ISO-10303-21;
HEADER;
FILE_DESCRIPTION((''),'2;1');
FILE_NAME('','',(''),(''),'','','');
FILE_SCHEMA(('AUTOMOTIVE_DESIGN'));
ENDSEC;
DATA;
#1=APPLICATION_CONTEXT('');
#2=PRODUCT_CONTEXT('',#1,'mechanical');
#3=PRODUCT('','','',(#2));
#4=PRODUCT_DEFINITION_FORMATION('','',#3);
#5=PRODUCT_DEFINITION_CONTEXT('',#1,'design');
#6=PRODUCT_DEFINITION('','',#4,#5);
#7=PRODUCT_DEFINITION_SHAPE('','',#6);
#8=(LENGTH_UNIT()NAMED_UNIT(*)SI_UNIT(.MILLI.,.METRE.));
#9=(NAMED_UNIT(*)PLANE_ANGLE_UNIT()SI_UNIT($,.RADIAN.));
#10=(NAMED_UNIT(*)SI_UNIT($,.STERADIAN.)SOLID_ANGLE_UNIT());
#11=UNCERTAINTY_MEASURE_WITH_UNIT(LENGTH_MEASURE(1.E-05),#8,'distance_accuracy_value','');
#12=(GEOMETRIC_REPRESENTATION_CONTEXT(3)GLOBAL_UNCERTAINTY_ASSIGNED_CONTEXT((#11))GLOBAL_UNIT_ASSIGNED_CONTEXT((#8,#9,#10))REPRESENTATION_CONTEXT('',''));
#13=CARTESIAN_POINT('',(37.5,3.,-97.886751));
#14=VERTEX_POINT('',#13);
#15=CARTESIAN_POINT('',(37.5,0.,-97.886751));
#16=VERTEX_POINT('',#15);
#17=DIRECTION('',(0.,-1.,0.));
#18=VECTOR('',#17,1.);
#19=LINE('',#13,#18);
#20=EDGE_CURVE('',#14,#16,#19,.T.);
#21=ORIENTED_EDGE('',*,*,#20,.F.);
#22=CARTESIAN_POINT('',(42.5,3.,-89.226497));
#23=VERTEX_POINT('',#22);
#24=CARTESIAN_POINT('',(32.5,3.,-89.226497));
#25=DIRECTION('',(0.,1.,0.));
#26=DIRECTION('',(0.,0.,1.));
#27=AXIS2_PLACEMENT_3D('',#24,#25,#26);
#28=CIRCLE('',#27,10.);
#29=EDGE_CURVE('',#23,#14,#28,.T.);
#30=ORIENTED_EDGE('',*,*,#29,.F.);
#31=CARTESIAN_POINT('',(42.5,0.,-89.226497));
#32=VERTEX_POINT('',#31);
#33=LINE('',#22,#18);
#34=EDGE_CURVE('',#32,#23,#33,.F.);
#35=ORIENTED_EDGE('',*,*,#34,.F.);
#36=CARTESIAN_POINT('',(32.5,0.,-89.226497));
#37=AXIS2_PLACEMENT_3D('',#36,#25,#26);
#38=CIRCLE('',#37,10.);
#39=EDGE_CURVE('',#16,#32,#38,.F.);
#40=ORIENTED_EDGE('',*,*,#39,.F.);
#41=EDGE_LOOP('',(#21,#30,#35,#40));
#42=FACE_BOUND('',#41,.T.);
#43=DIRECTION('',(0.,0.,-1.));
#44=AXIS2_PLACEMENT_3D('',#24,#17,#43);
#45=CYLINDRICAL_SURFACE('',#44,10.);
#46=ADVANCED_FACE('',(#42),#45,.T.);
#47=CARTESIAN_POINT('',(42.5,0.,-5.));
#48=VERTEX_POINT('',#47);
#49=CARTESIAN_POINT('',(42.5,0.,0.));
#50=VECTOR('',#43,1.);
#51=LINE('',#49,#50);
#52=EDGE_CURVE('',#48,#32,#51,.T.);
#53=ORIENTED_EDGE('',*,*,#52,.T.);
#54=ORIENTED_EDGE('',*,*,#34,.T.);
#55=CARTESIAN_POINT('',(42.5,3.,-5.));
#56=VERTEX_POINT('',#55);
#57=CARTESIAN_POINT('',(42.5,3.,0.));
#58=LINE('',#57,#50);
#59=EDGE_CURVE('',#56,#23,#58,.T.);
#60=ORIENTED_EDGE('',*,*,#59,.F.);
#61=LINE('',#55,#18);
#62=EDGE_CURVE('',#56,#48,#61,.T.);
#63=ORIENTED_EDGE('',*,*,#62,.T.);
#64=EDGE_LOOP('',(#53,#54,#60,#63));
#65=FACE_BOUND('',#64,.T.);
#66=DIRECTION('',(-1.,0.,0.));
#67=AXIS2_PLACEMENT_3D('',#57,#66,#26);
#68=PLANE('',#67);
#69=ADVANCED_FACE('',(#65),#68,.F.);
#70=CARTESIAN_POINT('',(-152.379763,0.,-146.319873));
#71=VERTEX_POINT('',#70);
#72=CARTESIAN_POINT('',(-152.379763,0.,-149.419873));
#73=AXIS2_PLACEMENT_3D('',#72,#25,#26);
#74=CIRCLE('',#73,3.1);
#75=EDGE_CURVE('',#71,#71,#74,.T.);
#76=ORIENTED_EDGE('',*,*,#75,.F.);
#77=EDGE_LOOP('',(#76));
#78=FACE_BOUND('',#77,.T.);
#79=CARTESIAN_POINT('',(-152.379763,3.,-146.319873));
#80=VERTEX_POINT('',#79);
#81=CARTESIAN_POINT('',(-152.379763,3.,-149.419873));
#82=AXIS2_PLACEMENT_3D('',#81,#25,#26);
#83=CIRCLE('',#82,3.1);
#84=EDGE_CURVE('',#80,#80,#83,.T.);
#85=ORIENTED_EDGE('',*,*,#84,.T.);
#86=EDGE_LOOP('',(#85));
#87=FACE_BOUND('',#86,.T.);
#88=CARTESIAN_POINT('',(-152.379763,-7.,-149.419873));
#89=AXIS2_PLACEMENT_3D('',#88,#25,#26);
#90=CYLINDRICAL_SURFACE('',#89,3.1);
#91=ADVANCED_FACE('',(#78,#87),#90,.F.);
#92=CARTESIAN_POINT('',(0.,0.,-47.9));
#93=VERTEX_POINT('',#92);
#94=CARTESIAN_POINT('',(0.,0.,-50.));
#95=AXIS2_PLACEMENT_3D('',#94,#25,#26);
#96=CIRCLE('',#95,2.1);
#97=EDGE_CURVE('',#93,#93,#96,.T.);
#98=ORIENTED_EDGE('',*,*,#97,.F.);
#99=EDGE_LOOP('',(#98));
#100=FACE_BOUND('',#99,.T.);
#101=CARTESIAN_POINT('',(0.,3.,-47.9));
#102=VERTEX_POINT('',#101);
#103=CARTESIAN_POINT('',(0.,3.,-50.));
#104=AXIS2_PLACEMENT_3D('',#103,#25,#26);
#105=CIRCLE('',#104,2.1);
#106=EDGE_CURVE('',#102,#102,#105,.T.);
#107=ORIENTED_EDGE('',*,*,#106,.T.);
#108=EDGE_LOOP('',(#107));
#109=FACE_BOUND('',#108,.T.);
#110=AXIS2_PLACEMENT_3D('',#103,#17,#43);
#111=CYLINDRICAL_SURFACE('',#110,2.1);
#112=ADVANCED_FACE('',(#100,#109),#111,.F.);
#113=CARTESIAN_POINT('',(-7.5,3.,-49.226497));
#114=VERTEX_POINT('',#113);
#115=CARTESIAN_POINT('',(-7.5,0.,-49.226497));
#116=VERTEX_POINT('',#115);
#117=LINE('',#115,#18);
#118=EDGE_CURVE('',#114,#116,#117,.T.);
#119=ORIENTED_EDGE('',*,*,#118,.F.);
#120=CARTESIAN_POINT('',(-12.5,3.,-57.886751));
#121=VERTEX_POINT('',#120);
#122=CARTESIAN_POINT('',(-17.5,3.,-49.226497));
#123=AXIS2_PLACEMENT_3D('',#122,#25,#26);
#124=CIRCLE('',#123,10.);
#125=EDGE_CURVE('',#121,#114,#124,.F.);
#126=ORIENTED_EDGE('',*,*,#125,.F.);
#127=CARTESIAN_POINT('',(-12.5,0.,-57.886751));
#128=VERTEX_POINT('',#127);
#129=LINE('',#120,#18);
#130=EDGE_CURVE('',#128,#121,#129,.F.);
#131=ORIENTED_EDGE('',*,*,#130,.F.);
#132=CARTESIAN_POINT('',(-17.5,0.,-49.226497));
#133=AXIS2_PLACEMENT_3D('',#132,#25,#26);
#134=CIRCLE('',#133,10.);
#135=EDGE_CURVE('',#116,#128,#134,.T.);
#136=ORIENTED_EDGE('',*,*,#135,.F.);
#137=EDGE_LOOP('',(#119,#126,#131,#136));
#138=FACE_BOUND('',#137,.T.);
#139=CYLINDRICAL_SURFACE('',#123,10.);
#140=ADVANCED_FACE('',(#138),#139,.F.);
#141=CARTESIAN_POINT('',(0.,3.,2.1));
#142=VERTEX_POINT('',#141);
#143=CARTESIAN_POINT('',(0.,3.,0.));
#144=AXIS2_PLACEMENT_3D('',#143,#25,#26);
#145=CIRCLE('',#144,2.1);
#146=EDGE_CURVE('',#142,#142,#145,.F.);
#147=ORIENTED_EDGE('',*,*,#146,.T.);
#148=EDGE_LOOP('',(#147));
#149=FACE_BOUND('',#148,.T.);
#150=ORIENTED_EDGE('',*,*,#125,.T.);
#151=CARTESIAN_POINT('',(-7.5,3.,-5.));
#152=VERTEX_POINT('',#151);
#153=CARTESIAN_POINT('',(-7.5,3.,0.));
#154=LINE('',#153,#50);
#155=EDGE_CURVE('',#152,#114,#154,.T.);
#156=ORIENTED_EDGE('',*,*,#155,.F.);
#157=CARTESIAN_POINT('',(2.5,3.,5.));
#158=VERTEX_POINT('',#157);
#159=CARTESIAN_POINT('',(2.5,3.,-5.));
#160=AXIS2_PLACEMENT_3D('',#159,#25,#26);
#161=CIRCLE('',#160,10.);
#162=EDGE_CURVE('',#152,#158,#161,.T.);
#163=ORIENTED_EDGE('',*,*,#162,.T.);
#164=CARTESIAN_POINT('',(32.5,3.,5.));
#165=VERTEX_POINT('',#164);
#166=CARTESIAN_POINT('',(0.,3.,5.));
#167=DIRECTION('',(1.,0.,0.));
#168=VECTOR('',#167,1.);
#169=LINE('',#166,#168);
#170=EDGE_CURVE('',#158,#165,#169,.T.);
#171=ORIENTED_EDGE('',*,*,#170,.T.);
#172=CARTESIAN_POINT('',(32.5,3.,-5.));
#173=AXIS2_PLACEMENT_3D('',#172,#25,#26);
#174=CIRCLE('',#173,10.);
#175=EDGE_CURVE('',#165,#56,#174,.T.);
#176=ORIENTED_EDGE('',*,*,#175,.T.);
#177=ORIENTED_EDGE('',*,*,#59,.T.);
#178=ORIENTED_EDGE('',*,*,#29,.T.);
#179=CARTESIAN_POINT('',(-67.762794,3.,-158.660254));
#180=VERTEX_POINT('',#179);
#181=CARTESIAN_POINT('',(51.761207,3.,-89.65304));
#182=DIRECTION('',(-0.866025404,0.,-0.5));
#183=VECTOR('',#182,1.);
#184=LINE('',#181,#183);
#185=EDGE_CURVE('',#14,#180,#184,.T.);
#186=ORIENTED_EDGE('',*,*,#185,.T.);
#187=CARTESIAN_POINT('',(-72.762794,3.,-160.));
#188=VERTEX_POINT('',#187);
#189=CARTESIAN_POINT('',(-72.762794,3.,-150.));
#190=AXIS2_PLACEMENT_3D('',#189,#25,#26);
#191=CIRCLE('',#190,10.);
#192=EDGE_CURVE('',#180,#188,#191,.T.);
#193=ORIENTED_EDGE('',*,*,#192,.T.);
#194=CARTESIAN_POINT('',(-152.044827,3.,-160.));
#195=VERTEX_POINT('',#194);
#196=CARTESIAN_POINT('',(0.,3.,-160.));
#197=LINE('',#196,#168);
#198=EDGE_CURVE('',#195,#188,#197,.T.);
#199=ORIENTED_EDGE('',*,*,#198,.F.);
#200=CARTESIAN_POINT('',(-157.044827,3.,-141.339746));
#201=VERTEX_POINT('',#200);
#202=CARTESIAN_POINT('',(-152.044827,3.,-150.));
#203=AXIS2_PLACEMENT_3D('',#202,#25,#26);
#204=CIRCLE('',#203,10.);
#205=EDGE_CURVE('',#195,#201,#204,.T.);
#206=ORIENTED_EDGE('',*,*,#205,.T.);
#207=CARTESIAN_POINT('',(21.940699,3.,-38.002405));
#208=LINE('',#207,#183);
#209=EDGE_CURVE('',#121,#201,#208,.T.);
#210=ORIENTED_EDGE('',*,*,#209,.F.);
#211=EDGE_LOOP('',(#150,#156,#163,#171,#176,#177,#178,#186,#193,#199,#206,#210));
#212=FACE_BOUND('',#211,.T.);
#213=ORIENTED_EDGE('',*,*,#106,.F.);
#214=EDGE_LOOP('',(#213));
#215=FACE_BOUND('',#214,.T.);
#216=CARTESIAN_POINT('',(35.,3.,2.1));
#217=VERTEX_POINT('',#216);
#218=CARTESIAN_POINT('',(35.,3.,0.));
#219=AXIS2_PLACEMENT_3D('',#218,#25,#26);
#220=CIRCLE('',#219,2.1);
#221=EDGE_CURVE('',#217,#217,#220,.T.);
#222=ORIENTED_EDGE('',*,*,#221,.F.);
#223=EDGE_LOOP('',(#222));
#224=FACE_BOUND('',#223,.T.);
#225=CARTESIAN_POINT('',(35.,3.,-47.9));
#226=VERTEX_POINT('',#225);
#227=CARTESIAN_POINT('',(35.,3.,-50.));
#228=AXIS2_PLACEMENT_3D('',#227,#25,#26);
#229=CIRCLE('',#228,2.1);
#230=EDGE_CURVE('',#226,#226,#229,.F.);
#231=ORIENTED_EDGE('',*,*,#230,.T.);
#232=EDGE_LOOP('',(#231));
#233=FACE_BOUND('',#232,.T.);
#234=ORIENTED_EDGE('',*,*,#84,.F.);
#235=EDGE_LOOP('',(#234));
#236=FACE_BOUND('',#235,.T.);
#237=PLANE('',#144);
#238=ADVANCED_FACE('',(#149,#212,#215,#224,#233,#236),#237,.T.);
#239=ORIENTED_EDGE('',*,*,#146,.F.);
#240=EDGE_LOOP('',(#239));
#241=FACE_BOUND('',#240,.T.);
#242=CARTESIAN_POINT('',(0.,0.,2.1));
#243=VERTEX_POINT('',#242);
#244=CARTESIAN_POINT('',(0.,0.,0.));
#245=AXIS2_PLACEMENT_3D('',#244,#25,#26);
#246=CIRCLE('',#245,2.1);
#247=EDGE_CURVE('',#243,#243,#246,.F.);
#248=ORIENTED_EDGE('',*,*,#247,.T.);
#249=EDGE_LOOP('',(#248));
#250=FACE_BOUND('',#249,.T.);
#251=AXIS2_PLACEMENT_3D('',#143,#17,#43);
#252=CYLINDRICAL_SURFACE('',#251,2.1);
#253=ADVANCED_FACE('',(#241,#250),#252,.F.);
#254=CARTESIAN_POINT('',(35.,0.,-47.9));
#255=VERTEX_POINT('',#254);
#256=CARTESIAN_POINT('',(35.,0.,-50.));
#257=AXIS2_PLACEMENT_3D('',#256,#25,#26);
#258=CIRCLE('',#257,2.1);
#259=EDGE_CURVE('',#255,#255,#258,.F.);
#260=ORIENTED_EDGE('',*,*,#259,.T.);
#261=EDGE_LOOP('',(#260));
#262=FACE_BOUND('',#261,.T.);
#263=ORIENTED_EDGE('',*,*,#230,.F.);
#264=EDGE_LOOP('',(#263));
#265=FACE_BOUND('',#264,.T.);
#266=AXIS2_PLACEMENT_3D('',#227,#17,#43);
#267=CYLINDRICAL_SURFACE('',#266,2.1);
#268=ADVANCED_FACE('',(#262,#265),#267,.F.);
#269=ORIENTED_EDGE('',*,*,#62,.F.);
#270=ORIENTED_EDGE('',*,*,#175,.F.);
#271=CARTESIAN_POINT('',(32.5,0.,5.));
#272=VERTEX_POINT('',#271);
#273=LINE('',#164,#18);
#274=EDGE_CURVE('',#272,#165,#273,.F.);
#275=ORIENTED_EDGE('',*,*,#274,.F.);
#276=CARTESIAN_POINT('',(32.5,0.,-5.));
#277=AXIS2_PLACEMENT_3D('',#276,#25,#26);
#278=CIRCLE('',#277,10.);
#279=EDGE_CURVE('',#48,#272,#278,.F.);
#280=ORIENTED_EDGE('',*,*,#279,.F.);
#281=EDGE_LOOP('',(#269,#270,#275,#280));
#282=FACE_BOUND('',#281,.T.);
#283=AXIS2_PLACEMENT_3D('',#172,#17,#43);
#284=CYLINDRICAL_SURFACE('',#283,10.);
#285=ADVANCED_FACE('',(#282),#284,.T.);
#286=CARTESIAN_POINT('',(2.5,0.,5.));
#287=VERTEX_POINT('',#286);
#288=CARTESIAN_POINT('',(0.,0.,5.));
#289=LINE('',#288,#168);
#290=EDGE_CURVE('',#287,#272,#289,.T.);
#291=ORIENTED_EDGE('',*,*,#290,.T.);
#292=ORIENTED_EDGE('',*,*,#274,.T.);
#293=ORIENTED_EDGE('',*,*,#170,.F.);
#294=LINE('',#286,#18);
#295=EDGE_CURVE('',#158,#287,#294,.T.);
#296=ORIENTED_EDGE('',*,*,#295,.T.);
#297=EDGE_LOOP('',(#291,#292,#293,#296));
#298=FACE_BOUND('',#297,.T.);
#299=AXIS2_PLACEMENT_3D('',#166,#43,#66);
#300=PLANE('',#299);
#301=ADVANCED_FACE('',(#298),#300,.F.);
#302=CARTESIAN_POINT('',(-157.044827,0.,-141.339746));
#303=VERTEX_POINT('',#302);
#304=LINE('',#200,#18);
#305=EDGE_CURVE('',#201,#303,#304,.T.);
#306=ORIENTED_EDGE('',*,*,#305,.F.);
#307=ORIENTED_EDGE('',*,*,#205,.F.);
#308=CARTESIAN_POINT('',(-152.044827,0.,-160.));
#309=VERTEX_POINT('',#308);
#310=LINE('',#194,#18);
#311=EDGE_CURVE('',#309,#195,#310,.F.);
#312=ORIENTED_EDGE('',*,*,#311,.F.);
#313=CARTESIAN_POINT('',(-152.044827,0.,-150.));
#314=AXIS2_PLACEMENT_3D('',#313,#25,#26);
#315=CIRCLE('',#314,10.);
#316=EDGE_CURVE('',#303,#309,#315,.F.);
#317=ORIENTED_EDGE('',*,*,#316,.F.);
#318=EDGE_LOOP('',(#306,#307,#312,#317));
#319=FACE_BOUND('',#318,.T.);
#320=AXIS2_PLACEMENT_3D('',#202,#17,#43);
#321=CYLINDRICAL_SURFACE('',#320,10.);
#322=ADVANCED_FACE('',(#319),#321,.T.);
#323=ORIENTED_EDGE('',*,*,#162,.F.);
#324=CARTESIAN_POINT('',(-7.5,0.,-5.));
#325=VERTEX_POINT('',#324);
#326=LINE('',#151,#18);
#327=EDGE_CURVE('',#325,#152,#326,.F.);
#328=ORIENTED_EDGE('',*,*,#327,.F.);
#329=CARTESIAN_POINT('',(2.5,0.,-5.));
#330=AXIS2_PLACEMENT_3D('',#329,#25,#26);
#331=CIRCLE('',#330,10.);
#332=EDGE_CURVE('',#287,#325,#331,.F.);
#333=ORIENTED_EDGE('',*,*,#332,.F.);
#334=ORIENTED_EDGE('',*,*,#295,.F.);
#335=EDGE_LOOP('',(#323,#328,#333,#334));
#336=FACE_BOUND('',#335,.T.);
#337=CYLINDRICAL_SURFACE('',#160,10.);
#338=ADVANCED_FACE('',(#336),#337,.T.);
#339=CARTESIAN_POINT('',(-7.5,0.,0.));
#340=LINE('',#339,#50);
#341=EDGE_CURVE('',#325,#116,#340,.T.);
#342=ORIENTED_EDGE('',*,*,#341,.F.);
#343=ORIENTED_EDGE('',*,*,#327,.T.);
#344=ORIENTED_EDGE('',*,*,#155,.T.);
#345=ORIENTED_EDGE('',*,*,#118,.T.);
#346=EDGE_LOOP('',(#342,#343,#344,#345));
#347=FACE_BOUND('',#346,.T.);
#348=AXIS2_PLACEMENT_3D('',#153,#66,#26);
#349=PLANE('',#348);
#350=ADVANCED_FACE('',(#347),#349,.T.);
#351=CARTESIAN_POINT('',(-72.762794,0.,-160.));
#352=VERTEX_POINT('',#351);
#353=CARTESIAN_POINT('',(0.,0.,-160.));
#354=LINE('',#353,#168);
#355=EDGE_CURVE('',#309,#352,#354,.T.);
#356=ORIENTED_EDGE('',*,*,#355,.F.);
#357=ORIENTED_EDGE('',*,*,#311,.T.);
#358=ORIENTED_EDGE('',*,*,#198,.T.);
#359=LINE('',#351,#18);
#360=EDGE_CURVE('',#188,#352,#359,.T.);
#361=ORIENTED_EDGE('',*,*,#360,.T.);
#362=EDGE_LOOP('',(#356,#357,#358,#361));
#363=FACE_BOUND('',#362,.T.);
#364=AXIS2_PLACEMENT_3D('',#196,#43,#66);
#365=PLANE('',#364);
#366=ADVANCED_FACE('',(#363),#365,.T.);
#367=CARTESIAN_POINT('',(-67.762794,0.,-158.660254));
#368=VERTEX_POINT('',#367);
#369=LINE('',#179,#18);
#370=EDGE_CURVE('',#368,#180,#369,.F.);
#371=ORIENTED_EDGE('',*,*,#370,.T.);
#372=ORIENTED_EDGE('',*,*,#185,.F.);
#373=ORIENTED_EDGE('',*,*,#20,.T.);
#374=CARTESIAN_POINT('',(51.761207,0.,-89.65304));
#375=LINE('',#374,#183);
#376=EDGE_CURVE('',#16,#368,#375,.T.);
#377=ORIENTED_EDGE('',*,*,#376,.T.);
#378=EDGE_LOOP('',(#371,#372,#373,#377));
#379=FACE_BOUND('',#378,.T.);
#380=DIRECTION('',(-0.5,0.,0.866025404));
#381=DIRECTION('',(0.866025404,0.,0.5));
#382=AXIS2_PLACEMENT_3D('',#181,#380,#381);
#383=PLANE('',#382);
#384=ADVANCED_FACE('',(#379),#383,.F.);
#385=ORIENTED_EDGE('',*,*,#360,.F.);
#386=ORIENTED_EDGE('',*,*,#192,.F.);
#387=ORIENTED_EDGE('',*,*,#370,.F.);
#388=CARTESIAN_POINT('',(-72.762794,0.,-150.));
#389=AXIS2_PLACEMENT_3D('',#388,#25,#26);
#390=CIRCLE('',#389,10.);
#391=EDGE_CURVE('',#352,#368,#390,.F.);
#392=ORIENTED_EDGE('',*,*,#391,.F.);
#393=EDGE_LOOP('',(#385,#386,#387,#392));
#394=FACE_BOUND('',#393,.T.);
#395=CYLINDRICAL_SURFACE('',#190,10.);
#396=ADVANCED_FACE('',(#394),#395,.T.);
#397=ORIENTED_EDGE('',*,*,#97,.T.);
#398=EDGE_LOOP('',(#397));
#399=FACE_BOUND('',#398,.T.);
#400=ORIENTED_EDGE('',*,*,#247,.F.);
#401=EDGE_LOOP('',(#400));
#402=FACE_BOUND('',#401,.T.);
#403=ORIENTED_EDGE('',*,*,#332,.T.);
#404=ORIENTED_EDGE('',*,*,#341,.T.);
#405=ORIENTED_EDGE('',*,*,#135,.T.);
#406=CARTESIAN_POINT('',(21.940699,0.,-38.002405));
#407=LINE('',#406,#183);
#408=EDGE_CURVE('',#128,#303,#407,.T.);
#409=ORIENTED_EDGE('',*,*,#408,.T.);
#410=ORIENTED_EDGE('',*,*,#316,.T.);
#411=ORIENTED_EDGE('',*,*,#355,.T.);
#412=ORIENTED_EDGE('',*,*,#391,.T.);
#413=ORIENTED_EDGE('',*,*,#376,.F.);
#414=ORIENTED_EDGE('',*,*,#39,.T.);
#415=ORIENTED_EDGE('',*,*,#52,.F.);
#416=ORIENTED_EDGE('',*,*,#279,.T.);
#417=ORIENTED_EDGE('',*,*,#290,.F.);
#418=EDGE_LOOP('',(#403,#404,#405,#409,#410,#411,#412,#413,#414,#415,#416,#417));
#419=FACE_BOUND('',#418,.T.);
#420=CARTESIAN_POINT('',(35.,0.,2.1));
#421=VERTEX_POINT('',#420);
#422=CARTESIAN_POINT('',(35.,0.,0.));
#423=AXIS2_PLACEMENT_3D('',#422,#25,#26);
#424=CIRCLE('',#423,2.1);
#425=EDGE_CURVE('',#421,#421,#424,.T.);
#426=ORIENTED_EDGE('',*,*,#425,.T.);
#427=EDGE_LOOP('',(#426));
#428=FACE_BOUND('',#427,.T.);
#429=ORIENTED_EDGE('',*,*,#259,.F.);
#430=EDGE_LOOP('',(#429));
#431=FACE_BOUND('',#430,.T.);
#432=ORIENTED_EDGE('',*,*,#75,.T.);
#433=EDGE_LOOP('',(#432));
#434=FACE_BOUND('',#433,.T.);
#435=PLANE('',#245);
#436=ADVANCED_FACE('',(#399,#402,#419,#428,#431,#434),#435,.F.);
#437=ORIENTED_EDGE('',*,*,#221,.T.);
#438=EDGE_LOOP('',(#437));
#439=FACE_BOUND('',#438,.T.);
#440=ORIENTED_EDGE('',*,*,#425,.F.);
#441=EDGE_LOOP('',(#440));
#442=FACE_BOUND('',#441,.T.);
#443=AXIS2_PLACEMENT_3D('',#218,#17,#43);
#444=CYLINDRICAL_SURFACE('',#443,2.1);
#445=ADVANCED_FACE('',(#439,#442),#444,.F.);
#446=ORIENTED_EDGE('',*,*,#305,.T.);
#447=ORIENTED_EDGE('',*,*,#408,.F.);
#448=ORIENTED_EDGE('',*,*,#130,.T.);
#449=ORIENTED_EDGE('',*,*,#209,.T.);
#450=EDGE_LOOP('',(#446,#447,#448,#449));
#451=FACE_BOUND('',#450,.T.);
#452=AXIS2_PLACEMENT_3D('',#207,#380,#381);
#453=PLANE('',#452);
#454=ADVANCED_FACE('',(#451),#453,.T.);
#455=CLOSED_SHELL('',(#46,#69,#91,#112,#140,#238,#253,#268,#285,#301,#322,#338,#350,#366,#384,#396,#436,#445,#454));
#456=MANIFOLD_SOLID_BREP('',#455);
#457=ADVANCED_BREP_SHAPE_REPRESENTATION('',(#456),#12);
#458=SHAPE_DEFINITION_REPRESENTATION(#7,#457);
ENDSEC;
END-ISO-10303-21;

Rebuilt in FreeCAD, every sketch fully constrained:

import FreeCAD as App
import Part
import Sketcher
from FreeCAD import Vector
Q = App.Units.Quantity


def edges_at(feature, points):
    """Names of the edges that pass closest to the given points."""
    edges = feature.Shape.Edges
    near = lambda p: min(range(len(edges)), key=lambda i: edges[i].distToShape(Part.Vertex(*p))[0])
    return sorted({f"Edge{near(p) + 1}" for p in points})

doc = App.newDocument("Part")
body = doc.addObject("PartDesign::Body", "Body")

sketch1 = body.newObject("Sketcher::SketchObject", "Sketch")
sketch1.AttachmentSupport = (doc.getObject("XZ_Plane"), [""])
sketch1.MapMode = "FlatFace"
sketch1.addGeometry([
    Part.LineSegment(Vector(-7.5, -55, 0), Vector(-7.5, 5, 0)),
    Part.LineSegment(Vector(-7.5, 5, 0), Vector(42.5, 5, 0)),
    Part.LineSegment(Vector(42.5, 5, 0), Vector(42.5, -95, 0)),
    Part.LineSegment(Vector(42.5, -95, 0), Vector(12.189111, -112.5, 0)),
    Part.LineSegment(Vector(12.189111, -112.5, 0), Vector(-18.121778, -130, 0)),
    Part.LineSegment(Vector(-18.121778, -130, 0), Vector(-70.083302, -160, 0)),
    Part.LineSegment(Vector(-70.083302, -160, 0), Vector(-189.365335, -160, 0)),
    Part.LineSegment(Vector(-189.365335, -160, 0), Vector(-7.5, -55, 0)),
    Part.Circle(Vector(0, 0, 0), Vector(0, 0, 1), 2.1),
    Part.Circle(Vector(35, 0, 0), Vector(0, 0, 1), 2.1),
    Part.Circle(Vector(0, -50, 0), Vector(0, 0, 1), 2.1),
    Part.Circle(Vector(35, -50, 0), Vector(0, 0, 1), 2.1),
], False)
sketch1.addConstraint([
    Sketcher.Constraint("Coincident", 0, 2, 1, 1),
    Sketcher.Constraint("Coincident", 1, 2, 2, 1),
    Sketcher.Constraint("Coincident", 2, 2, 3, 1),
    Sketcher.Constraint("Coincident", 3, 2, 4, 1),
    Sketcher.Constraint("Coincident", 4, 2, 5, 1),
    Sketcher.Constraint("Coincident", 5, 2, 6, 1),
    Sketcher.Constraint("Coincident", 6, 2, 7, 1),
    Sketcher.Constraint("Coincident", 7, 2, 0, 1),
    Sketcher.Constraint("Vertical", 0),
    Sketcher.Constraint("Horizontal", 1),
    Sketcher.Constraint("Vertical", 2),
    Sketcher.Constraint("Horizontal", 6),
    Sketcher.Constraint("Coincident", 8, 3, -1, 1),
    Sketcher.Constraint("Equal", 8, 9),
    Sketcher.Constraint("Equal", 9, 10),
    Sketcher.Constraint("Equal", 10, 11),
    Sketcher.Constraint("PointOnObject", 9, 3, -1),
    Sketcher.Constraint("PointOnObject", 10, 3, -2),
    Sketcher.Constraint("Parallel", 3, 4),
    Sketcher.Constraint("Parallel", 4, 5),
    Sketcher.Constraint("Parallel", 5, 7),
    Sketcher.Constraint("Horizontal", 10, 3, 11, 3),
    Sketcher.Constraint("Vertical", 9, 3, 11, 3),
    Sketcher.Constraint("Equal", 3, 4),
    Sketcher.Constraint("Diameter", 8, 4.2),
    Sketcher.Constraint("DistanceX", 1, 1, 1, 2, 50.0),
    Sketcher.Constraint("DistanceY", 0, 1, 0, 2, 60.0),
    Sketcher.Constraint("DistanceY", 2, 2, 2, 1, 100.0),
    Sketcher.Constraint("Angle", 3, Q("-150 deg")),
    Sketcher.Constraint("Distance", 3, 35.0),
    Sketcher.Constraint("Distance", 5, 60.0),
    Sketcher.Constraint("DistanceX", -1, 1, 9, 3, 35.0),
    Sketcher.Constraint("DistanceY", 10, 3, -1, 1, 50.0),
    Sketcher.Constraint("DistanceY", -1, 1, 0, 2, 5.0),
    Sketcher.Constraint("DistanceX", 0, 2, -1, 1, 7.5),
])
pad1 = body.newObject("PartDesign::Pad", "Pad")
pad1.Profile = sketch1
pad1.Length = 3
pad1.Reversed = True
doc.recompute()

fillet = body.newObject("PartDesign::Fillet", "Fillet")
fillet.Base = (pad1, edges_at(pad1, [
    (-70.083, 1.5, -160),
    (42.5, 1.5, -95),
    (-7.5, 1.5, -55),
    (-189.365, 1.5, -160),
]))
fillet.Radius = 10

sketch2 = body.newObject("Sketcher::SketchObject", "Sketch001")
sketch2.AttachmentSupport = (doc.getObject("XZ_Plane"), [""])
sketch2.MapMode = "FlatFace"
sketch2.AttachmentOffset = App.Placement(Vector(0, 0, -3), App.Rotation())
sketch2.addGeometry(Part.Circle(Vector(-152.379763, -149.419873, 0), Vector(0, 0, 1), 3.1), False)
sketch2.addConstraint([
    Sketcher.Constraint("Diameter", 0, 6.2),
    Sketcher.Constraint("DistanceX", 0, 3, -1, 1, 152.379763),
    Sketcher.Constraint("DistanceY", 0, 3, -1, 1, 149.419873),
])
pocket1 = body.newObject("PartDesign::Pocket", "Pocket")
pocket1.Profile = sketch2
pocket1.Length = 10
pocket1.Reversed = True
doc.recompute()

fillet2 = body.newObject("PartDesign::Fillet", "Fillet001")
fillet2.Base = (pocket1, edges_at(pocket1, [(42.5, 1.5, 5), (-7.5, 1.5, 5)]))
fillet2.Radius = 10

doc.recompute()
